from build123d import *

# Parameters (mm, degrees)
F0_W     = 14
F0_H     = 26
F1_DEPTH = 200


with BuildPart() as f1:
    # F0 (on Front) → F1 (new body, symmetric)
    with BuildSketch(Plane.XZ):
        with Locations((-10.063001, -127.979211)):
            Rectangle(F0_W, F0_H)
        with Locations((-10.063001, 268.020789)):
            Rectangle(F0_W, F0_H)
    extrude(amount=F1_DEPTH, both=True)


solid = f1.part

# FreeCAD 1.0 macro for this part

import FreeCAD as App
import Part
import Sketcher
from FreeCAD import Vector

doc = App.newDocument("Part")
body = doc.addObject("PartDesign::Body", "Body")
body.AllowCompound = True

# Sketch on XZ plane
sketch1 = body.newObject("Sketcher::SketchObject", "Sketch")
sketch1.AttachmentSupport = (doc.getObject("XZ_Plane"), [""])
sketch1.MapMode = "FlatFace"
sketch1.addGeometry([
    Part.LineSegment(Vector(-17, -115, 0), Vector(-17, -141, 0)),  # 0
    Part.LineSegment(Vector(-17, -141, 0), Vector(-3, -141, 0)),  # 1
    Part.LineSegment(Vector(-3, -141, 0), Vector(-3, -115, 0)),  # 2
    Part.LineSegment(Vector(-3, -115, 0), Vector(-17, -115, 0)),  # 3
    Part.LineSegment(Vector(-17, 281, 0), Vector(-17, 255, 0)),  # 4
    Part.LineSegment(Vector(-17, 255, 0), Vector(-3, 255, 0)),  # 5
    Part.LineSegment(Vector(-3, 255, 0), Vector(-3, 281, 0)),  # 6
    Part.LineSegment(Vector(-3, 281, 0), Vector(-17, 281, 0)),  # 7
], False)
sketch1.addConstraint([
    Sketcher.Constraint("Coincident", 0, 2, 1, 1),
    Sketcher.Constraint("Coincident", 1, 2, 2, 1),
    Sketcher.Constraint("Coincident", 2, 2, 3, 1),
    Sketcher.Constraint("Coincident", 3, 2, 0, 1),
    Sketcher.Constraint("Coincident", 4, 2, 5, 1),
    Sketcher.Constraint("Coincident", 5, 2, 6, 1),
    Sketcher.Constraint("Coincident", 6, 2, 7, 1),
    Sketcher.Constraint("Coincident", 7, 2, 4, 1),
    Sketcher.Constraint("Vertical", 0),
    Sketcher.Constraint("Horizontal", 1),
    Sketcher.Constraint("Vertical", 2),
    Sketcher.Constraint("Horizontal", 3),
    Sketcher.Constraint("Vertical", 4),
    Sketcher.Constraint("Horizontal", 5),
    Sketcher.Constraint("Vertical", 6),
    Sketcher.Constraint("Horizontal", 7),
    Sketcher.Constraint("Vertical", 3, 2, 4, 2),
    Sketcher.Constraint("Vertical", 2, 2, 5, 2),
    Sketcher.Constraint("Equal", 2, 4),
    Sketcher.Constraint("DistanceX", 1, 1, 1, 2, 14.0),
    Sketcher.Constraint("DistanceY", 0, 2, 0, 1, 26.0),
    Sketcher.Constraint("DistanceY", 3, 2, 4, 2, 370.0),
    Sketcher.Constraint("DistanceX", 0, 2, -1, 1, 17.063001),
    Sketcher.Constraint("DistanceY", 0, 2, -1, 1, 140.979211),
])
pad1 = body.newObject("PartDesign::Pad", "Pad")
pad1.Profile = sketch1
pad1.Length = 400
pad1.Midplane = True

doc.recompute()
